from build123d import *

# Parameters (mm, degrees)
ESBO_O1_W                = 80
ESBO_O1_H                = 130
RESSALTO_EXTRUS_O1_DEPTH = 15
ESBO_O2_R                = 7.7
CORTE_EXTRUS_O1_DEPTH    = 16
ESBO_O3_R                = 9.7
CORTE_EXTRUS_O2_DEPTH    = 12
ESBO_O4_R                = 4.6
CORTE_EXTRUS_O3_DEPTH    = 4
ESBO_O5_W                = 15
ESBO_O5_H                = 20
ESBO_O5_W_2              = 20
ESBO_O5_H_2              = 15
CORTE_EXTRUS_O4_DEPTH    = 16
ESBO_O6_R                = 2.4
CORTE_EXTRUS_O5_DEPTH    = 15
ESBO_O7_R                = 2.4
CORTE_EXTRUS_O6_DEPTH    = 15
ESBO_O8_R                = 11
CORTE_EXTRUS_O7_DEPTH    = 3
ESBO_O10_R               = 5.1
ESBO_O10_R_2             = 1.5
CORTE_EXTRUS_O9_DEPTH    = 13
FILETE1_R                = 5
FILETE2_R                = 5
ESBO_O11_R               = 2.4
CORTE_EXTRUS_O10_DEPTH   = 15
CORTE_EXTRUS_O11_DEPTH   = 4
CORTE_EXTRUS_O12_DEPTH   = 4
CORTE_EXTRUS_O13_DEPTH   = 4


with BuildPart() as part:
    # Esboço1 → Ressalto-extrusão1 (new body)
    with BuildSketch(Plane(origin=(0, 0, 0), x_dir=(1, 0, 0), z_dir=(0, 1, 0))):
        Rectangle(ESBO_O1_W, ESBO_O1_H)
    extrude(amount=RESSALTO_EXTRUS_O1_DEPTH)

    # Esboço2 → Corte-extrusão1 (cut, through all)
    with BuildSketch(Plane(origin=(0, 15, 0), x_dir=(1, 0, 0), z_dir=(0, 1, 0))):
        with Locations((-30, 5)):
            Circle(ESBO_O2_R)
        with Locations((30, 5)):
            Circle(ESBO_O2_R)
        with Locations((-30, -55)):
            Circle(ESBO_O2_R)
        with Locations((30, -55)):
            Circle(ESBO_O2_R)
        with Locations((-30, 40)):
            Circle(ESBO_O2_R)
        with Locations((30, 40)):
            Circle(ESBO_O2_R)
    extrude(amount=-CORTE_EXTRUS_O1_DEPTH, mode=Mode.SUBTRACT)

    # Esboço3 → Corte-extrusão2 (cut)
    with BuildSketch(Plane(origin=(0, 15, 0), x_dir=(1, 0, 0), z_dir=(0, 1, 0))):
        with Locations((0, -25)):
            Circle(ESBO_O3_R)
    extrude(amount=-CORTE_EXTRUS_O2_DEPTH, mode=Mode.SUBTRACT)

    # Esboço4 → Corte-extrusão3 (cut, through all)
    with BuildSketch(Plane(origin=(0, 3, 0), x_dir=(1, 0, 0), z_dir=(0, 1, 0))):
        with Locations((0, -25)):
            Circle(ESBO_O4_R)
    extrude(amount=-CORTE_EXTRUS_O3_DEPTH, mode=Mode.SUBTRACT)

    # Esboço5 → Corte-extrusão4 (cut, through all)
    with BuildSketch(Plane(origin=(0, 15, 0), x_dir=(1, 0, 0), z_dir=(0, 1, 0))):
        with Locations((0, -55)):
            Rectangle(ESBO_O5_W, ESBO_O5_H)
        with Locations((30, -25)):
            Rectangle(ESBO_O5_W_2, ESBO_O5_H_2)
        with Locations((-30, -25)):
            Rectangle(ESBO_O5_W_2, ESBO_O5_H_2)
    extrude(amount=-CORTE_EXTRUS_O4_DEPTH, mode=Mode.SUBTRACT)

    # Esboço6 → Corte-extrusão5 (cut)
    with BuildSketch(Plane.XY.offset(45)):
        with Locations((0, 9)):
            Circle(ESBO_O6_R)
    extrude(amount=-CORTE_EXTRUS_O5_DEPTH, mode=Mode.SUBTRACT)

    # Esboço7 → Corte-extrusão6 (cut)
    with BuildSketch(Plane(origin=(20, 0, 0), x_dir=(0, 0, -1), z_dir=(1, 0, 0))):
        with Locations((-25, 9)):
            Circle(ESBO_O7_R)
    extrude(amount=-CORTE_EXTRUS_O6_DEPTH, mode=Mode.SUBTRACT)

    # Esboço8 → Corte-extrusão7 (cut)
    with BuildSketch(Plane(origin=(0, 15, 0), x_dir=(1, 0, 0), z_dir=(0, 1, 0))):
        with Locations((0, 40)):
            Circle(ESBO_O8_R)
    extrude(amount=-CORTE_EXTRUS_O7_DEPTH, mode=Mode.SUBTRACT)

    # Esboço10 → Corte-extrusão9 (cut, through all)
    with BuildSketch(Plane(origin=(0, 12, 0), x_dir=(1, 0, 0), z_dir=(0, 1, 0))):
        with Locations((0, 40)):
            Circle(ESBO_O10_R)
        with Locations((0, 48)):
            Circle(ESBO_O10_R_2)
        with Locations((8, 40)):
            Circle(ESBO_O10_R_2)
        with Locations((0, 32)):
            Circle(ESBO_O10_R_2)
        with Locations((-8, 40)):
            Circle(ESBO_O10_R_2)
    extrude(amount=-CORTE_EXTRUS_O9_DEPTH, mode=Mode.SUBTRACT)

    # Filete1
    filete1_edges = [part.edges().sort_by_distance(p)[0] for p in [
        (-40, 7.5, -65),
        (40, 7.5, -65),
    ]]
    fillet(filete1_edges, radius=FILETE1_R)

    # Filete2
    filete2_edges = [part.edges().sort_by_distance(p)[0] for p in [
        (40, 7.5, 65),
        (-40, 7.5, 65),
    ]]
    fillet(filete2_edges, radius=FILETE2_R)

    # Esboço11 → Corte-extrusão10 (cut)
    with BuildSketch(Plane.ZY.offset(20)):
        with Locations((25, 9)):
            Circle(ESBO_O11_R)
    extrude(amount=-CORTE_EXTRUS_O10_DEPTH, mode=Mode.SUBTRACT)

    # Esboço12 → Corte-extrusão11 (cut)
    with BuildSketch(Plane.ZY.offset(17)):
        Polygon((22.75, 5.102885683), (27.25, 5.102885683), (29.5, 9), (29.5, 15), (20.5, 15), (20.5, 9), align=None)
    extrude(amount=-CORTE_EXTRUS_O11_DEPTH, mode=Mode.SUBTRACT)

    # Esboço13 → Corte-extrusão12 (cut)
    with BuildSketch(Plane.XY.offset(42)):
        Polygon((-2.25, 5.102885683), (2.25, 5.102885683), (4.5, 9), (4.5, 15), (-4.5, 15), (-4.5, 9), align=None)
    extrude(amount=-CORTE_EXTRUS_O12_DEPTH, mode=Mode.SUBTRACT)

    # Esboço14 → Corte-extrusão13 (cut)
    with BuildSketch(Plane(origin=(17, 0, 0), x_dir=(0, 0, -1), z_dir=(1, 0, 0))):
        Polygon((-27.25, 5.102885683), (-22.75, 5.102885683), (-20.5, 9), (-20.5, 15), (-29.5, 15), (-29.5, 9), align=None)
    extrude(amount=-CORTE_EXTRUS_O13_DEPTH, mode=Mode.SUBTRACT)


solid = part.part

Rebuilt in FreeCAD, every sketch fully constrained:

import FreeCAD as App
import Part
import Sketcher
Q = App.Units.Quantity


def edges_at(feature, points):
    """Names of the edges that pass closest to the given points."""
    edges = feature.Shape.Edges
    near = lambda p: min(range(len(edges)), key=lambda i: edges[i].distToShape(Part.Vertex(*p))[0])
    return sorted({f"Edge{near(p) + 1}" for p in points})


def add_polygon(sketch, points):
    """Adds a closed chain of lines whose ends are joined by coincident constraints."""
    first, n = sketch.GeometryCount, len(points)
    for a, b in zip(points, points[1:] + points[:1]):
        sketch.addGeometry(Part.LineSegment(App.Vector(*a, 0), App.Vector(*b, 0)), False)
    for i in range(n):
        sketch.addConstraint(Sketcher.Constraint("Coincident", first + i, 2, first + (i + 1) % n, 1))

doc = App.newDocument("Part")
body = doc.addObject("PartDesign::Body", "Body")

# Sketch on XZ plane
sketch1 = doc.addObject("Sketcher::SketchObject", "Sketch")
body.addObject(sketch1)
sketch1.AttachmentSupport = (doc.XZ_Plane, [""])
sketch1.MapMode = "FlatFace"
add_polygon(sketch1, [(-40, -65), (-40, 65), (40, 65), (40, -65)])  # lines 0-3
sketch1.addConstraint([
    Sketcher.Constraint("Vertical", 0),
    Sketcher.Constraint("Horizontal", 1),
    Sketcher.Constraint("Vertical", 2),
    Sketcher.Constraint("Horizontal", 3),
    Sketcher.Constraint("Symmetric", 0, 2, 2, 2, -1, 1),
    Sketcher.Constraint("DistanceX", 1, 1, 1, 2, Q("80 mm")),
    Sketcher.Constraint("DistanceY", 0, 1, 0, 2, Q("130 mm")),
])
pad1 = doc.addObject("PartDesign::Pad", "Pad")
body.addObject(pad1)
pad1.Profile = sketch1
pad1.Length = 15
pad1.Reversed = True

# Sketch on XZ plane
sketch2 = doc.addObject("Sketcher::SketchObject", "Sketch001")
body.addObject(sketch2)
sketch2.AttachmentSupport = (doc.XZ_Plane, [""])
sketch2.MapMode = "FlatFace"
sketch2.AttachmentOffset = App.Placement(App.Vector(0, 0, -15), App.Rotation())
sketch2.addGeometry([
    Part.Circle(App.Vector(-30, -5, 0), App.Vector(0, 0, 1), 8),  # 0
    Part.Circle(App.Vector(30, -5, 0), App.Vector(0, 0, 1), 8),  # 1
    Part.Circle(App.Vector(-30, 55, 0), App.Vector(0, 0, 1), 8),  # 2
    Part.Circle(App.Vector(30, 55, 0), App.Vector(0, 0, 1), 8),  # 3
    Part.Circle(App.Vector(-30, -40, 0), App.Vector(0, 0, 1), 8),  # 4
    Part.Circle(App.Vector(30, -40, 0), App.Vector(0, 0, 1), 8),  # 5
], False)
sketch2.addConstraint([
    Sketcher.Constraint("Equal", 0, 1),
    Sketcher.Constraint("Equal", 1, 2),
    Sketcher.Constraint("Equal", 2, 3),
    Sketcher.Constraint("Equal", 3, 4),
    Sketcher.Constraint("Equal", 4, 5),
    Sketcher.Constraint("Symmetric", 0, 3, 1, 3, -2),
    Sketcher.Constraint("Symmetric", 2, 3, 3, 3, -2),
    Sketcher.Constraint("Symmetric", 4, 3, 5, 3, -2),
    Sketcher.Constraint("Vertical", 0, 3, 2, 3),
    Sketcher.Constraint("Vertical", 2, 3, 4, 3),
    Sketcher.Constraint("Diameter", 0, Q("15.4 mm")),
    Sketcher.Constraint("DistanceX", 0, 3, -1, 1, Q("30 mm")),
    Sketcher.Constraint("DistanceY", 0, 3, -1, 1, Q("5 mm")),
    Sketcher.Constraint("DistanceY", -1, 1, 2, 3, Q("55 mm")),
    Sketcher.Constraint("DistanceY", 4, 3, -1, 1, Q("40 mm")),
])
pocket1 = doc.addObject("PartDesign::Pocket", "Pocket")
body.addObject(pocket1)
pocket1.Profile = sketch2
pocket1.Type = "ThroughAll"
pocket1.Reversed = True

# Sketch on XZ plane
sketch3 = doc.addObject("Sketcher::SketchObject", "Sketch002")
body.addObject(sketch3)
sketch3.AttachmentSupport = (doc.XZ_Plane, [""])
sketch3.MapMode = "FlatFace"
sketch3.AttachmentOffset = App.Placement(App.Vector(0, 0, -15), App.Rotation())
sketch3.addGeometry(Part.Circle(App.Vector(0, 25, 0), App.Vector(0, 0, 1), 10), False)
sketch3.addConstraint([
    Sketcher.Constraint("PointOnObject", 0, 3, -2),
    Sketcher.Constraint("Diameter", 0, Q("19.4 mm")),
    Sketcher.Constraint("DistanceY", -1, 1, 0, 3, Q("25 mm")),
])
pocket2 = doc.addObject("PartDesign::Pocket", "Pocket001")
body.addObject(pocket2)
pocket2.Profile = sketch3
pocket2.Length = 12
pocket2.Reversed = True

# Sketch on XZ plane
sketch4 = doc.addObject("Sketcher::SketchObject", "Sketch003")
body.addObject(sketch4)
sketch4.AttachmentSupport = (doc.XZ_Plane, [""])
sketch4.MapMode = "FlatFace"
sketch4.AttachmentOffset = App.Placement(App.Vector(0, 0, -3), App.Rotation())
sketch4.addGeometry(Part.Circle(App.Vector(0, 25, 0), App.Vector(0, 0, 1), 4.6), False)
sketch4.addConstraint([
    Sketcher.Constraint("PointOnObject", 0, 3, -2),
    Sketcher.Constraint("Diameter", 0, Q("9.2 mm")),
    Sketcher.Constraint("DistanceY", -1, 1, 0, 3, Q("25 mm")),
])
pocket3 = doc.addObject("PartDesign::Pocket", "Pocket002")
body.addObject(pocket3)
pocket3.Profile = sketch4
pocket3.Type = "ThroughAll"
pocket3.Reversed = True

# Sketch on XZ plane
sketch5 = doc.addObject("Sketcher::SketchObject", "Sketch004")
body.addObject(sketch5)
sketch5.AttachmentSupport = (doc.XZ_Plane, [""])
sketch5.MapMode = "FlatFace"
sketch5.AttachmentOffset = App.Placement(App.Vector(0, 0, -15), App.Rotation())
add_polygon(sketch5, [(-8, 45), (-8, 65), (8, 65), (8, 45)])  # lines 0-3
add_polygon(sketch5, [(20, 18), (20, 32), (40, 32), (40, 18)])  # lines 4-7
add_polygon(sketch5, [(-40, 18), (-40, 32), (-20, 32), (-20, 18)])  # lines 8-11
sketch5.addConstraint([
    Sketcher.Constraint("Vertical", 0),
    Sketcher.Constraint("Horizontal", 1),
    Sketcher.Constraint("Vertical", 2),
    Sketcher.Constraint("Horizontal", 3),
    Sketcher.Constraint("Vertical", 4),
    Sketcher.Constraint("Horizontal", 5),
    Sketcher.Constraint("Vertical", 6),
    Sketcher.Constraint("Horizontal", 7),
    Sketcher.Constraint("Vertical", 8),
    Sketcher.Constraint("Horizontal", 9),
    Sketcher.Constraint("Vertical", 10),
    Sketcher.Constraint("Horizontal", 11),
    Sketcher.Constraint("Symmetric", 5, 2, 8, 2, -2),
    Sketcher.Constraint("Symmetric", 7, 2, 10, 2, -2),
    Sketcher.Constraint("Equal", 11, 0),
    Sketcher.Constraint("Equal", 3, 4),
    Sketcher.Constraint("DistanceX", 1, 1, 1, 2, Q("15 mm")),
    Sketcher.Constraint("DistanceX", 5, 1, 5, 2, Q("20 mm")),
    Sketcher.Constraint("DistanceY", -1, 1, 0, 2, Q("65 mm")),
    Sketcher.Constraint("DistanceX", -1, 1, 4, 2, Q("20 mm")),
    Sketcher.Constraint("DistanceX", 0, 2, -1, 1, Q("7.5 mm")),
    Sketcher.Constraint("DistanceY", -1, 1, 4, 2, Q("32.5 mm")),
])
pocket4 = doc.addObject("PartDesign::Pocket", "Pocket003")
body.addObject(pocket4)
pocket4.Profile = sketch5
pocket4.Type = "ThroughAll"
pocket4.Reversed = True

# Sketch on XY plane
sketch6 = doc.addObject("Sketcher::SketchObject", "Sketch005")
body.addObject(sketch6)
sketch6.AttachmentSupport = (doc.XY_Plane, [""])
sketch6.MapMode = "FlatFace"
sketch6.AttachmentOffset = App.Placement(App.Vector(0, 0, 45), App.Rotation())
sketch6.addGeometry(Part.Circle(App.Vector(0, 9, 0), App.Vector(0, 0, 1), 2.4), False)
sketch6.addConstraint([
    Sketcher.Constraint("PointOnObject", 0, 3, -2),
    Sketcher.Constraint("Diameter", 0, Q("4.8 mm")),
    Sketcher.Constraint("DistanceY", -1, 1, 0, 3, Q("9 mm")),
])
pocket5 = doc.addObject("PartDesign::Pocket", "Pocket004")
body.addObject(pocket5)
pocket5.Profile = sketch6
pocket5.Length = 15

# Sketch on YZ plane
sketch7 = doc.addObject("Sketcher::SketchObject", "Sketch006")
body.addObject(sketch7)
sketch7.AttachmentSupport = (doc.YZ_Plane, [""])
sketch7.MapMode = "FlatFace"
sketch7.AttachmentOffset = App.Placement(App.Vector(0, 0, 20), App.Rotation())
sketch7.addGeometry(Part.Circle(App.Vector(9, 25, 0), App.Vector(0, 0, 1), 2.4), False)
sketch7.addConstraint([
    Sketcher.Constraint("Diameter", 0, Q("4.8 mm")),
    Sketcher.Constraint("DistanceX", -1, 1, 0, 3, Q("9 mm")),
    Sketcher.Constraint("DistanceY", -1, 1, 0, 3, Q("25 mm")),
])
pocket6 = doc.addObject("PartDesign::Pocket", "Pocket005")
body.addObject(pocket6)
pocket6.Profile = sketch7
pocket6.Length = 15

# Sketch on XZ plane
sketch8 = doc.addObject("Sketcher::SketchObject", "Sketch007")
body.addObject(sketch8)
sketch8.AttachmentSupport = (doc.XZ_Plane, [""])
sketch8.MapMode = "FlatFace"
sketch8.AttachmentOffset = App.Placement(App.Vector(0, 0, -15), App.Rotation())
sketch8.addGeometry(Part.Circle(App.Vector(0, -40, 0), App.Vector(0, 0, 1), 11), False)
sketch8.addConstraint([
    Sketcher.Constraint("PointOnObject", 0, 3, -2),
    Sketcher.Constraint("Diameter", 0, Q("22 mm")),
    Sketcher.Constraint("DistanceY", 0, 3, -1, 1, Q("40 mm")),
])
pocket7 = doc.addObject("PartDesign::Pocket", "Pocket006")
body.addObject(pocket7)
pocket7.Profile = sketch8
pocket7.Length = 3
pocket7.Reversed = True

# Sketch on XZ plane
sketch9 = doc.addObject("Sketcher::SketchObject", "Sketch008")
body.addObject(sketch9)
sketch9.AttachmentSupport = (doc.XZ_Plane, [""])
sketch9.MapMode = "FlatFace"
sketch9.AttachmentOffset = App.Placement(App.Vector(0, 0, -12), App.Rotation())
sketch9.addGeometry([
    Part.Circle(App.Vector(0, -40, 0), App.Vector(0, 0, 1), 5.1),  # 0
    Part.Circle(App.Vector(0, -48, 0), App.Vector(0, 0, 1), 1.5),  # 1
    Part.Circle(App.Vector(8, -40, 0), App.Vector(0, 0, 1), 1.5),  # 2
    Part.Circle(App.Vector(0, -32, 0), App.Vector(0, 0, 1), 1.5),  # 3
    Part.Circle(App.Vector(-8, -40, 0), App.Vector(0, 0, 1), 1.5),  # 4
], False)
sketch9.addConstraint([
    Sketcher.Constraint("Equal", 1, 2),
    Sketcher.Constraint("Equal", 2, 3),
    Sketcher.Constraint("Equal", 3, 4),
    Sketcher.Constraint("Symmetric", 2, 3, 4, 3, -2),
    Sketcher.Constraint("PointOnObject", 0, 3, -2),
    Sketcher.Constraint("PointOnObject", 1, 3, -2),
    Sketcher.Constraint("PointOnObject", 3, 3, -2),
    Sketcher.Constraint("Horizontal", 0, 3, 2, 3),
    Sketcher.Constraint("Diameter", 1, Q("3 mm")),
    Sketcher.Constraint("Diameter", 0, Q("10.2 mm")),
    Sketcher.Constraint("DistanceY", 0, 3, -1, 1, Q("40 mm")),
    Sketcher.Constraint("DistanceY", 1, 3, -1, 1, Q("48 mm")),
    Sketcher.Constraint("DistanceX", -1, 1, 2, 3, Q("8 mm")),
    Sketcher.Constraint("DistanceY", 3, 3, -1, 1, Q("32 mm")),
])
pocket8 = doc.addObject("PartDesign::Pocket", "Pocket007")
body.addObject(pocket8)
pocket8.Profile = sketch9
pocket8.Type = "ThroughAll"
pocket8.Reversed = True
doc.recompute()

fillet = doc.addObject("PartDesign::Fillet", "Fillet")
body.addObject(fillet)
fillet.Base = (pocket8, edges_at(pocket8, [(-40, 7.5, -65), (40, 7.5, -65)]))
fillet.Radius = 5
doc.recompute()

fillet2 = doc.addObject("PartDesign::Fillet", "Fillet001")
body.addObject(fillet2)
fillet2.Base = (fillet, edges_at(fillet, [(40, 7.5, 65), (-40, 7.5, 65)]))
fillet2.Radius = 5

# Sketch on YZ plane
sketch10 = doc.addObject("Sketcher::SketchObject", "Sketch009")
body.addObject(sketch10)
sketch10.AttachmentSupport = (doc.YZ_Plane, [""])
sketch10.MapMode = "FlatFace"
sketch10.AttachmentOffset = App.Placement(App.Vector(0, 0, -20), App.Rotation())
sketch10.addGeometry(Part.Circle(App.Vector(9, 25, 0), App.Vector(0, 0, 1), 2.4), False)
sketch10.addConstraint([
    Sketcher.Constraint("Diameter", 0, Q("4.8 mm")),
    Sketcher.Constraint("DistanceX", -1, 1, 0, 3, Q("9 mm")),
    Sketcher.Constraint("DistanceY", -1, 1, 0, 3, Q("25 mm")),
])
pocket9 = doc.addObject("PartDesign::Pocket", "Pocket008")
body.addObject(pocket9)
pocket9.Profile = sketch10
pocket9.Length = 15
pocket9.Reversed = True

# Sketch on YZ plane
sketch11 = doc.addObject("Sketcher::SketchObject", "Sketch010")
body.addObject(sketch11)
sketch11.AttachmentSupport = (doc.YZ_Plane, [""])
sketch11.MapMode = "FlatFace"
sketch11.AttachmentOffset = App.Placement(App.Vector(0, 0, -17), App.Rotation())
add_polygon(sketch11, [(5.1, 22.8), (5.1, 27.2), (9, 29.5), (15, 29.5), (15, 20.5), (9, 20.5)])  # lines 0-5
sketch11.addConstraint([
    Sketcher.Constraint("Vertical", 0),
    Sketcher.Constraint("Horizontal", 2),
    Sketcher.Constraint("Vertical", 3),
    Sketcher.Constraint("Horizontal", 4),
    Sketcher.Constraint("Vertical", 1, 2, 4, 2),
    Sketcher.Constraint("Equal", 1, 5),
    Sketcher.Constraint("DistanceX", 2, 1, 2, 2, Q("6 mm")),
    Sketcher.Constraint("DistanceY", 3, 2, 3, 1, Q("9 mm")),
    Sketcher.Constraint("Angle", 1, Q("30 deg")),
    Sketcher.Constraint("DistanceY", 0, 1, 0, 2, Q("4.5 mm")),
    Sketcher.Constraint("DistanceX", -1, 1, 1, 2, Q("9 mm")),
    Sketcher.Constraint("DistanceY", -1, 1, 1, 2, Q("29.5 mm")),
])
pocket10 = doc.addObject("PartDesign::Pocket", "Pocket009")
body.addObject(pocket10)
pocket10.Profile = sketch11
pocket10.Length = 4
pocket10.Reversed = True

# Sketch on XY plane
sketch12 = doc.addObject("Sketcher::SketchObject", "Sketch011")
body.addObject(sketch12)
sketch12.AttachmentSupport = (doc.XY_Plane, [""])
sketch12.MapMode = "FlatFace"
sketch12.AttachmentOffset = App.Placement(App.Vector(0, 0, 42), App.Rotation())
add_polygon(sketch12, [(-2.2, 5.1), (2.2, 5.1), (4.5, 9), (4.5, 15), (-4.5, 15), (-4.5, 9)])  # lines 0-5
sketch12.addConstraint([
    Sketcher.Constraint("Horizontal", 0),
    Sketcher.Constraint("Vertical", 2),
    Sketcher.Constraint("Horizontal", 3),
    Sketcher.Constraint("Vertical", 4),
    Sketcher.Constraint("Symmetric", 1, 2, 4, 2, -2),
    Sketcher.Constraint("Equal", 1, 5),
    Sketcher.Constraint("DistanceX", 3, 2, 3, 1, Q("9 mm")),
    Sketcher.Constraint("DistanceY", 2, 1, 2, 2, Q("6 mm")),
    Sketcher.Constraint("Angle", 1, Q("60 deg")),
    Sketcher.Constraint("DistanceX", 0, 1, 0, 2, Q("4.5 mm")),
    Sketcher.Constraint("DistanceY", -1, 1, 1, 2, Q("9 mm")),
])
pocket11 = doc.addObject("PartDesign::Pocket", "Pocket010")
body.addObject(pocket11)
pocket11.Profile = sketch12
pocket11.Length = 4

# Sketch on YZ plane
sketch13 = doc.addObject("Sketcher::SketchObject", "Sketch012")
body.addObject(sketch13)
sketch13.AttachmentSupport = (doc.YZ_Plane, [""])
sketch13.MapMode = "FlatFace"
sketch13.AttachmentOffset = App.Placement(App.Vector(0, 0, 17), App.Rotation())
add_polygon(sketch13, [(5.1, 27.2), (5.1, 22.8), (9, 20.5), (15, 20.5), (15, 29.5), (9, 29.5)])  # lines 0-5
sketch13.addConstraint([
    Sketcher.Constraint("Vertical", 0),
    Sketcher.Constraint("Horizontal", 2),
    Sketcher.Constraint("Vertical", 3),
    Sketcher.Constraint("Horizontal", 4),
    Sketcher.Constraint("Vertical", 1, 2, 4, 2),
    Sketcher.Constraint("Equal", 1, 5),
    Sketcher.Constraint("DistanceX", 2, 1, 2, 2, Q("6 mm")),
    Sketcher.Constraint("DistanceY", 3, 1, 3, 2, Q("9 mm")),
    Sketcher.Constraint("Angle", 1, Q("-30 deg")),
    Sketcher.Constraint("DistanceY", 0, 2, 0, 1, Q("4.5 mm")),
    Sketcher.Constraint("DistanceX", -1, 1, 1, 2, Q("9 mm")),
    Sketcher.Constraint("DistanceY", -1, 1, 1, 2, Q("20.5 mm")),
])
pocket12 = doc.addObject("PartDesign::Pocket", "Pocket011")
body.addObject(pocket12)
pocket12.Profile = sketch13
pocket12.Length = 4

doc.recompute()
